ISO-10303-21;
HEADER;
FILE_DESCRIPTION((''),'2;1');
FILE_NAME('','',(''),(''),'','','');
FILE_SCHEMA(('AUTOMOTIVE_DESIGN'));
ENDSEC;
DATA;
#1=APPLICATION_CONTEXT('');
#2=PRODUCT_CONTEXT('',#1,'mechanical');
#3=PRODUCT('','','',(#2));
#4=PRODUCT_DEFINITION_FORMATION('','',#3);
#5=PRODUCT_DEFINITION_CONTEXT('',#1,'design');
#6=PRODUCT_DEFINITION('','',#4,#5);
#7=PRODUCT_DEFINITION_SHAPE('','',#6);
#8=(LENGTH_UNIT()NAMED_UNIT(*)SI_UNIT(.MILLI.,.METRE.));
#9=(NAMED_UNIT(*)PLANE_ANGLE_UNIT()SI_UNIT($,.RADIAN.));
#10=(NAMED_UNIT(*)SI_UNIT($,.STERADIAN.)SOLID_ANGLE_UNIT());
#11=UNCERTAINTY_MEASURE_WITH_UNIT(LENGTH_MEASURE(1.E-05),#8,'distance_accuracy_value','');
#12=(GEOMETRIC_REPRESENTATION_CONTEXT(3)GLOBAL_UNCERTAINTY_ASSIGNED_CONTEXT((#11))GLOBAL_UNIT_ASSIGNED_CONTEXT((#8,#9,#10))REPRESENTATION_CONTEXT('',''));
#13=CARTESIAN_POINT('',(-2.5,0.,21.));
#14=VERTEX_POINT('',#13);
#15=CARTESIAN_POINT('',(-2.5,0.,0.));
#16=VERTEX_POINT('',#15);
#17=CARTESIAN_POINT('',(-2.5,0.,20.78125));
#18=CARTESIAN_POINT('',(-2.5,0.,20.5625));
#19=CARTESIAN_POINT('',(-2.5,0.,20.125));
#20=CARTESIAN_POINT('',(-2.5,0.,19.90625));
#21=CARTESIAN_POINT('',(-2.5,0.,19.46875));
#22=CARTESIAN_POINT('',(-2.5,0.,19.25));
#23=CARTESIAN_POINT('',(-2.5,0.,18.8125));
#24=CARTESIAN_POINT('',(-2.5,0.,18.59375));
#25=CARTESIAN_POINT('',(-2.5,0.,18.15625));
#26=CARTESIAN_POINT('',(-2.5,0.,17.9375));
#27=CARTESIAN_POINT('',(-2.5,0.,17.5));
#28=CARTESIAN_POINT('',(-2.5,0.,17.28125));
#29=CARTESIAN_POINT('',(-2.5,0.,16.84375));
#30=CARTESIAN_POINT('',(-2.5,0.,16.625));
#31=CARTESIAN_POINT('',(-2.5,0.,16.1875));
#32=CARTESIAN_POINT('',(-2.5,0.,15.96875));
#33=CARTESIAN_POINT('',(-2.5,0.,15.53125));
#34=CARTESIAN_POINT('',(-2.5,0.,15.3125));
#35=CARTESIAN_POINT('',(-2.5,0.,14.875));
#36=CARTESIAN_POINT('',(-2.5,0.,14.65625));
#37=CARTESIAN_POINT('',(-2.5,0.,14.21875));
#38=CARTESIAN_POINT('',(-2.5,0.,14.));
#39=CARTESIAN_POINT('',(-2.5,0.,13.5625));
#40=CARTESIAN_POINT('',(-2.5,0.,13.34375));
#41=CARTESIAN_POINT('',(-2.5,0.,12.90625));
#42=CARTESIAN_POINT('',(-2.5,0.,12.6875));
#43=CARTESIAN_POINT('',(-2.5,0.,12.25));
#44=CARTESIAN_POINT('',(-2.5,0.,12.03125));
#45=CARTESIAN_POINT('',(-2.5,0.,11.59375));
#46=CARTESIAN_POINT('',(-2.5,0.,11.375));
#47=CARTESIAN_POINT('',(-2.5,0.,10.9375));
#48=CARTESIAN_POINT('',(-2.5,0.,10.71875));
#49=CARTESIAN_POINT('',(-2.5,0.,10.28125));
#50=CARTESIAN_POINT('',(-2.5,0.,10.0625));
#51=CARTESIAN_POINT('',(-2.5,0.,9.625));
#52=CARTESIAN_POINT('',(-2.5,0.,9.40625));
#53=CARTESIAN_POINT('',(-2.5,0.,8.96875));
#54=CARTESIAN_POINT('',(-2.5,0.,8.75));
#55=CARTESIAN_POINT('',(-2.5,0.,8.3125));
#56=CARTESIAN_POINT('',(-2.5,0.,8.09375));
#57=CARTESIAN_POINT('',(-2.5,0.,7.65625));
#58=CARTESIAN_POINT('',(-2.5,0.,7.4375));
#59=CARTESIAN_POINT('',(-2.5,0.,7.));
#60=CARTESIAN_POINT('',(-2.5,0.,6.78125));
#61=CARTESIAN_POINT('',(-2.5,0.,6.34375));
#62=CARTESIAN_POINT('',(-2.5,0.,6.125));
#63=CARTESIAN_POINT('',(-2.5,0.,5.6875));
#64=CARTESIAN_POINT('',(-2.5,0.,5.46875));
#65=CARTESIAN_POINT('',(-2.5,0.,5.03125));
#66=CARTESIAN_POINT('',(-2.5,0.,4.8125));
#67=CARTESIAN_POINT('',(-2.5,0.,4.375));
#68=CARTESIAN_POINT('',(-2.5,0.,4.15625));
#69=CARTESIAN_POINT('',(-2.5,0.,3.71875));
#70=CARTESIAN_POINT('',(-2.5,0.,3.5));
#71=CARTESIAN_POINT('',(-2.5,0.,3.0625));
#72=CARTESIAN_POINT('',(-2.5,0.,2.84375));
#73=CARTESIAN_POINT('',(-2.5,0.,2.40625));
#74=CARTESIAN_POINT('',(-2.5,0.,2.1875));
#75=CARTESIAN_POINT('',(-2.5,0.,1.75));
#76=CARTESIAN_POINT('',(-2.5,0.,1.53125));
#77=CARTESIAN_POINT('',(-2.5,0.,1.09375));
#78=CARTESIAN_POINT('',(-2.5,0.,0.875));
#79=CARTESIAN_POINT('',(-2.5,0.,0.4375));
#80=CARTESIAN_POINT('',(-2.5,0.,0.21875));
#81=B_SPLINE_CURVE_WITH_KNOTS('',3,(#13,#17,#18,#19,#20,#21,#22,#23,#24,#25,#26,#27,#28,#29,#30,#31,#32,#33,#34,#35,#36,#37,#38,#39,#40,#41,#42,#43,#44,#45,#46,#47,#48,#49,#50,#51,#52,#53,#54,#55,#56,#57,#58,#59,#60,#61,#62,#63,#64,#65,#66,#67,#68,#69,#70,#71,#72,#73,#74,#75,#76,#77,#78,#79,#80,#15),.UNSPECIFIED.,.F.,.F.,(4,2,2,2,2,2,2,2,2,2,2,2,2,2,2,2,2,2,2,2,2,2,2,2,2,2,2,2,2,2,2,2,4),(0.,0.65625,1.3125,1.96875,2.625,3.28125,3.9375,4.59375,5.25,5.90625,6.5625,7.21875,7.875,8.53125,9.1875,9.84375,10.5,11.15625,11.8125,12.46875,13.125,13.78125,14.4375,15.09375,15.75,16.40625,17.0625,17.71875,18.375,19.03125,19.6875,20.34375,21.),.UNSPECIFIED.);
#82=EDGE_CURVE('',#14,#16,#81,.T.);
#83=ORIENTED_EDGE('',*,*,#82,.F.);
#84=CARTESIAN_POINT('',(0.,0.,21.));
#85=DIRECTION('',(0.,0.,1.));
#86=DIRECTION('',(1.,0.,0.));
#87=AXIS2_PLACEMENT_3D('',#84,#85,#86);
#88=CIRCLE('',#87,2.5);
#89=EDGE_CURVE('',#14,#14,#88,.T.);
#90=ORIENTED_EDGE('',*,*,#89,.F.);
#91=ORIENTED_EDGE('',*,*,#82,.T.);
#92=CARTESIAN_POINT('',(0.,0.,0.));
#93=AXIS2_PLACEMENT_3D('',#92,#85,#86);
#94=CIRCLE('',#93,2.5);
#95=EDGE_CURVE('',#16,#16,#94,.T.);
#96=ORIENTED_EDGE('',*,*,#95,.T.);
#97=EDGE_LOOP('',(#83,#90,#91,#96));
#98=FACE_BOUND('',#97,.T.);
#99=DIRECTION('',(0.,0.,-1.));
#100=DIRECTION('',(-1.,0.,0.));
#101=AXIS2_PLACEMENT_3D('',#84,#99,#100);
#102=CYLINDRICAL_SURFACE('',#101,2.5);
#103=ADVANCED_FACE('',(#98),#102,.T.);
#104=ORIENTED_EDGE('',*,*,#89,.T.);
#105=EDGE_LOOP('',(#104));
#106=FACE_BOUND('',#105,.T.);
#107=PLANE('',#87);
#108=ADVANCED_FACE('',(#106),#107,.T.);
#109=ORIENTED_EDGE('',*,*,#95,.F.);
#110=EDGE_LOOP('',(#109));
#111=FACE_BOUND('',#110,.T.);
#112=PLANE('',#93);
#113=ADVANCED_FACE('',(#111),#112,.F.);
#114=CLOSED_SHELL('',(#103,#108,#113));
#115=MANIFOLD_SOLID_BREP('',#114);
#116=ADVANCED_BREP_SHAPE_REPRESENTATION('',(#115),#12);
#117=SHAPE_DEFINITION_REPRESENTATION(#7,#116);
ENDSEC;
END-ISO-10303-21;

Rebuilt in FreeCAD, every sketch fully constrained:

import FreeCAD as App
import Part
import Sketcher

doc = App.newDocument("Part")
body = doc.addObject("PartDesign::Body", "Body")

# Sketch on XY plane
sketch1 = doc.addObject("Sketcher::SketchObject", "Sketch")
body.addObject(sketch1)
sketch1.AttachmentSupport = (doc.XY_Plane, [""])
sketch1.MapMode = "FlatFace"
sketch1.addGeometry(Part.Circle(App.Vector(0, 0, 0), App.Vector(0, 0, 1), 2.5), False)
sketch1.addConstraint([
    Sketcher.Constraint("Coincident", 0, 3, -1, 1),
    Sketcher.Constraint("Diameter", 0, 5.0),
])
pad1 = doc.addObject("PartDesign::Pad", "Pad")
body.addObject(pad1)
pad1.Profile = sketch1
pad1.Length = 21

doc.recompute()
